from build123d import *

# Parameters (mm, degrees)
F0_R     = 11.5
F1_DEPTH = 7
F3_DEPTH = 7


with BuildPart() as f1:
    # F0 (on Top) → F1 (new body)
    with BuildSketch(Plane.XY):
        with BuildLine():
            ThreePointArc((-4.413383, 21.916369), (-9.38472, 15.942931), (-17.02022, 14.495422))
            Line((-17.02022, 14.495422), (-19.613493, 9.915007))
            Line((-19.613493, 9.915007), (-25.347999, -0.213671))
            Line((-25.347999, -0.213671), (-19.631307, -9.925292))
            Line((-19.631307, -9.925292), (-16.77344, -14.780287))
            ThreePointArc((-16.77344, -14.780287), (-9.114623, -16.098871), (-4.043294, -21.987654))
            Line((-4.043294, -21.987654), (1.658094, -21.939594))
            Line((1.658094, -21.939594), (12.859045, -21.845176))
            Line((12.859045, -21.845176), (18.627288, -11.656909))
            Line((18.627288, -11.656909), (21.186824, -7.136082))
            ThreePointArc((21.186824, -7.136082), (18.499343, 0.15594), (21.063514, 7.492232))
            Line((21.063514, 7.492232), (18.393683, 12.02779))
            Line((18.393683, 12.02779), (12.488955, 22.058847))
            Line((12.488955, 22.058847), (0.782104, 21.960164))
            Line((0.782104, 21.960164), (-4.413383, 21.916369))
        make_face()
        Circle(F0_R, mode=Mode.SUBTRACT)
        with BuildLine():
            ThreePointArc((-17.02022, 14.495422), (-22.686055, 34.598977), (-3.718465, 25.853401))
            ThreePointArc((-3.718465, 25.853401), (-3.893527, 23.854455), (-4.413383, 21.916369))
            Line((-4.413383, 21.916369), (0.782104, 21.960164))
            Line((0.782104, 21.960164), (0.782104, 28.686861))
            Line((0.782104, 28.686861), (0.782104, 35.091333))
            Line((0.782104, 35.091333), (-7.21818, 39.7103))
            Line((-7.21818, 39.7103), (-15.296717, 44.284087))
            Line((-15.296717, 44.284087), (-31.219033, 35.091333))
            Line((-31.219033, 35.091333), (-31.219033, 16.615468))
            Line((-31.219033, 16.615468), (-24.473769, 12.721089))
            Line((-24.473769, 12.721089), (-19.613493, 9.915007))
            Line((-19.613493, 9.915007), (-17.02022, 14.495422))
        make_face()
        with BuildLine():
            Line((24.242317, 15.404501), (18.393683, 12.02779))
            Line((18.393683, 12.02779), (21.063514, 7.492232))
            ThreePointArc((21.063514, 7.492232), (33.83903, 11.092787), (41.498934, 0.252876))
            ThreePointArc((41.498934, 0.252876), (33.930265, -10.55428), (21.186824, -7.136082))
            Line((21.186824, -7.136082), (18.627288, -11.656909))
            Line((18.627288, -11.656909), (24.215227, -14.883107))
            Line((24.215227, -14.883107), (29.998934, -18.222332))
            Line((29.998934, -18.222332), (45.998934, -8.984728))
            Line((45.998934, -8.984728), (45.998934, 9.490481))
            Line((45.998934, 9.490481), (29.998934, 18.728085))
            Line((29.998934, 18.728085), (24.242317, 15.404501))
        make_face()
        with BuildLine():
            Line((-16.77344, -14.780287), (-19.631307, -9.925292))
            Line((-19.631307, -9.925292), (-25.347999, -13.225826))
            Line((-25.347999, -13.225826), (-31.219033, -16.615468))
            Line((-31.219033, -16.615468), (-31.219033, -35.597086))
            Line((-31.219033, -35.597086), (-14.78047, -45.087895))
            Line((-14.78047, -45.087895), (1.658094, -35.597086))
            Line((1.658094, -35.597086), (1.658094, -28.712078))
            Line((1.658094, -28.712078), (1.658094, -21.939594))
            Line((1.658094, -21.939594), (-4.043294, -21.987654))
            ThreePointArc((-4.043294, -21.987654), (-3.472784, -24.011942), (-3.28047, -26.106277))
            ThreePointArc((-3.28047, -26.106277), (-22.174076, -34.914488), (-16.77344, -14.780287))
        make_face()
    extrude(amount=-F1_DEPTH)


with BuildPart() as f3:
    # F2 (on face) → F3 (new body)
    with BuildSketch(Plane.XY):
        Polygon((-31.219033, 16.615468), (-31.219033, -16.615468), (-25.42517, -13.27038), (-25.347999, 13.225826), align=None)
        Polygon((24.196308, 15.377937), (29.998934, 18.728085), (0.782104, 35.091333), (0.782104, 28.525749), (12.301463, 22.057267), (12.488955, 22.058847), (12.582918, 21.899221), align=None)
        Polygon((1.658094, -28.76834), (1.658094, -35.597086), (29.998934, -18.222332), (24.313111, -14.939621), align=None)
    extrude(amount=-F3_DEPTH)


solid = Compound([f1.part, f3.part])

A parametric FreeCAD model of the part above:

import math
import FreeCAD as App
import Part
import Sketcher

V = App.Vector
Q = App.Units.Quantity

doc = App.newDocument("Part")
params = doc.addObject("Spreadsheet::Sheet", "Params")
for row, (alias, value) in enumerate([
    ("sketch1_diameter", "23 mm"),
    ("pad1_length", "7 mm"),
    ("pad2_length", "7 mm"),
], start=1):
    params.set(f"A{row}", alias)
    params.set(f"B{row}", "=" + value)
    params.setAlias(f"B{row}", alias)

body = doc.addObject("PartDesign::Body", "Body")

sketch1 = doc.addObject("Sketcher::SketchObject", "Sketch")
body.addObject(sketch1)
sketch1.AttachmentSupport = (doc.XY_Plane, [""])
sketch1.MapMode = "FlatFace"
sketch1.addGeometry([
    Part.LineSegment(V(12.5, 22.1, 0), V(0.8, 22, 0)),
    Part.LineSegment(V(0.8, 22, 0), V(0.8, 35.1, 0)),
    Part.LineSegment(V(0.8, 35.1, 0), V(-7.2, 39.7, 0)),
    Part.LineSegment(V(-7.2, 39.7, 0), V(-15.3, 44.3, 0)),
    Part.LineSegment(V(-15.3, 44.3, 0), V(-31.2, 35.1, 0)),
    Part.LineSegment(V(-31.2, 35.1, 0), V(-31.2, 16.6, 0)),
    Part.LineSegment(V(-31.2, 16.6, 0), V(-24.5, 12.7, 0)),
    Part.LineSegment(V(-24.5, 12.7, 0), V(-19.6, 9.9, 0)),
    Part.LineSegment(V(-19.6, 9.9, 0), V(-25.3, -0.2, 0)),
    Part.LineSegment(V(-25.3, -0.2, 0), V(-19.6, -9.9, 0)),
    Part.LineSegment(V(-19.6, -9.9, 0), V(-25.3, -13.2, 0)),
    Part.LineSegment(V(-25.3, -13.2, 0), V(-31.2, -16.6, 0)),
    Part.LineSegment(V(-31.2, -16.6, 0), V(-31.2, -35.6, 0)),
    Part.LineSegment(V(-31.2, -35.6, 0), V(-14.8, -45.1, 0)),
    Part.LineSegment(V(-14.8, -45.1, 0), V(1.7, -35.6, 0)),
    Part.LineSegment(V(1.7, -35.6, 0), V(1.7, -21.9, 0)),
    Part.LineSegment(V(1.7, -21.9, 0), V(12.9, -21.8, 0)),
    Part.LineSegment(V(12.9, -21.8, 0), V(18.6, -11.7, 0)),
    Part.LineSegment(V(18.6, -11.7, 0), V(24.2, -14.9, 0)),
    Part.LineSegment(V(24.2, -14.9, 0), V(30, -18.2, 0)),
    Part.LineSegment(V(30, -18.2, 0), V(46, -9, 0)),
    Part.LineSegment(V(46, -9, 0), V(46, 9.5, 0)),
    Part.LineSegment(V(46, 9.5, 0), V(30, 18.7, 0)),
    Part.LineSegment(V(30, 18.7, 0), V(24.2, 15.4, 0)),
    Part.LineSegment(V(24.2, 15.4, 0), V(18.4, 12, 0)),
    Part.LineSegment(V(18.4, 12, 0), V(12.5, 22.1, 0)),
    Part.ArcOfCircle(Part.Circle(V(-15.2, 25.9, 0), V(0, 0, 1), 11.5), math.radians(-99), math.radians(-20)),
    Part.ArcOfCircle(Part.Circle(V(-15.2, 25.9, 0), V(0, 0, 1), 11.5), math.radians(0), math.radians(261)),
    Part.ArcOfCircle(Part.Circle(V(-15.2, 25.9, 0), V(0, 0, 1), 11.5), math.radians(-20), math.radians(0)),
    Part.ArcOfCircle(Part.Circle(V(-14.8, -26.1, 0), V(0, 0, 1), 11.5), math.radians(21), math.radians(100)),
    Part.ArcOfCircle(Part.Circle(V(-14.8, -26.1, 0), V(0, 0, 1), 11.5), math.radians(0), math.radians(21)),
    Part.ArcOfCircle(Part.Circle(V(-14.8, -26.1, 0), V(0, 0, 1), 11.5), math.radians(100), math.radians(360)),
    Part.ArcOfCircle(Part.Circle(V(30, 0.3, 0), V(0, 0, 1), 11.5), math.radians(141), math.radians(220)),
    Part.ArcOfCircle(Part.Circle(V(30, 0.3, 0), V(0, 0, 1), 11.5), math.radians(0), math.radians(141)),
    Part.ArcOfCircle(Part.Circle(V(30, 0.3, 0), V(0, 0, 1), 11.5), math.radians(-140), math.radians(0)),
    Part.Circle(V(0, 0, 0), V(0, 0, 1), 11.5),
], False)
sketch1.addConstraint([
    Sketcher.Constraint("Coincident", 0, 2, 1, 1),
    Sketcher.Constraint("Coincident", 1, 2, 2, 1),
    Sketcher.Constraint("Coincident", 2, 2, 3, 1),
    Sketcher.Constraint("Coincident", 3, 2, 4, 1),
    Sketcher.Constraint("Coincident", 4, 2, 5, 1),
    Sketcher.Constraint("Coincident", 5, 2, 6, 1),
    Sketcher.Constraint("Coincident", 6, 2, 7, 1),
    Sketcher.Constraint("Coincident", 7, 2, 8, 1),
    Sketcher.Constraint("Coincident", 8, 2, 9, 1),
    Sketcher.Constraint("Coincident", 9, 2, 10, 1),
    Sketcher.Constraint("Coincident", 10, 2, 11, 1),
    Sketcher.Constraint("Coincident", 11, 2, 12, 1),
    Sketcher.Constraint("Coincident", 12, 2, 13, 1),
    Sketcher.Constraint("Coincident", 13, 2, 14, 1),
    Sketcher.Constraint("Coincident", 14, 2, 15, 1),
    Sketcher.Constraint("Coincident", 15, 2, 16, 1),
    Sketcher.Constraint("Coincident", 16, 2, 17, 1),
    Sketcher.Constraint("Coincident", 17, 2, 18, 1),
    Sketcher.Constraint("Coincident", 18, 2, 19, 1),
    Sketcher.Constraint("Coincident", 19, 2, 20, 1),
    Sketcher.Constraint("Coincident", 20, 2, 21, 1),
    Sketcher.Constraint("Coincident", 21, 2, 22, 1),
    Sketcher.Constraint("Coincident", 22, 2, 23, 1),
    Sketcher.Constraint("Coincident", 23, 2, 24, 1),
    Sketcher.Constraint("Coincident", 24, 2, 25, 1),
    Sketcher.Constraint("Coincident", 25, 2, 0, 1),
    Sketcher.Constraint("Tangent", 26, 1, 27, 2),
    Sketcher.Constraint("Tangent", 27, 1, 28, 2),
    Sketcher.Constraint("Tangent", 28, 1, 26, 2),
    Sketcher.Constraint("Tangent", 29, 1, 30, 2),
    Sketcher.Constraint("Tangent", 30, 1, 31, 2),
    Sketcher.Constraint("Tangent", 31, 1, 29, 2),
    Sketcher.Constraint("Tangent", 32, 1, 33, 2),
    Sketcher.Constraint("Tangent", 33, 1, 34, 2),
    Sketcher.Constraint("Tangent", 34, 1, 32, 2),
    Sketcher.Constraint("Vertical", 1),
    Sketcher.Constraint("Vertical", 5),
    Sketcher.Constraint("Vertical", 12),
    Sketcher.Constraint("Vertical", 15),
    Sketcher.Constraint("Vertical", 21),
    Sketcher.Constraint("Coincident", 35, 3, -1, 1),
    Sketcher.Constraint("Equal", 27, 29),
    Sketcher.Constraint("Equal", 31, 32),
    Sketcher.Constraint("Equal", 34, 35),
    Sketcher.Constraint("Symmetric", 5, 2, 11, 2, -1),
    Sketcher.Constraint("Parallel", 2, 6),
    Sketcher.Constraint("Parallel", 6, 7),
    Sketcher.Constraint("Perpendicular", 3, 8),
    Sketcher.Constraint("Parallel", 4, 10),
    Sketcher.Constraint("Parallel", 10, 11),
    Sketcher.Constraint("Parallel", 7, 13),
    Sketcher.Constraint("Parallel", 11, 14),
    Sketcher.Constraint("Parallel", 0, 16),
    Sketcher.Constraint("Parallel", 8, 17),
    Sketcher.Constraint("Parallel", 13, 18),
    Sketcher.Constraint("Parallel", 18, 19),
    Sketcher.Constraint("Parallel", 14, 20),
    Sketcher.Constraint("Parallel", 19, 22),
    Sketcher.Constraint("Parallel", 20, 23),
    Sketcher.Constraint("Parallel", 23, 24),
    Sketcher.Constraint("Parallel", 9, 25),
    Sketcher.Constraint("Horizontal", 1, 2, 4, 2),
    Sketcher.Constraint("Horizontal", 12, 2, 14, 2),
    Sketcher.Constraint("Horizontal", 28, 3, 27, 1),
    Sketcher.Constraint("Horizontal", 31, 3, 30, 1),
    Sketcher.Constraint("Horizontal", 34, 3, 33, 1),
    Sketcher.Constraint("Vertical", 8, 2, 10, 2),
    Sketcher.Constraint("Vertical", 31, 3, 13, 2),
    Sketcher.Constraint("Vertical", 34, 3, 19, 2),
    Sketcher.Constraint("Vertical", 19, 2, 22, 2),
    Sketcher.Constraint("Equal", 13, 14),
    Sketcher.Constraint("Diameter", 35, Q("23 mm")),
    Sketcher.Constraint("Angle", 2, Q("149.999995 deg")),
    Sketcher.Constraint("DistanceX", 32, 3, 20, 2, Q("15.999999 mm")),
    Sketcher.Constraint("DistanceX", 8, 2, -1, 1, Q("25.347999 mm")),
    Sketcher.Constraint("DistanceY", 1, 1, 1, 2, Q("13.131169 mm")),
    Sketcher.Constraint("DistanceY", 15, 1, 15, 2, Q("13.657492 mm")),
    Sketcher.Constraint("DistanceY", 21, 1, 21, 2, Q("18.475209 mm")),
    Sketcher.Constraint("DistanceY", -1, 1, 27, 3, Q("25.853401 mm")),
    Sketcher.Constraint("DistanceY", -1, 1, 2, 2, Q("39.7103 mm")),
    Sketcher.Constraint("DistanceY", -1, 1, 23, 2, Q("15.404501 mm")),
    Sketcher.Constraint("DistanceX", 27, 3, 32, 3, Q("45.2174 mm")),
    Sketcher.Constraint("DistanceY", 9, 2, 7, 2, Q("19.840299 mm")),
    Sketcher.Constraint("DistanceY", 29, 3, 16, 2, Q("4.2611 mm")),
    Sketcher.Constraint("DistanceY", 18, 2, 17, 2, Q("3.226198 mm")),
    Sketcher.Constraint("Distance", 3, Q("9.283442 mm")),
    Sketcher.Constraint("Distance", 6, Q("7.788759 mm")),
    Sketcher.Constraint("Distance", 8, Q("11.639359 mm")),
    Sketcher.Constraint("Distance", 14, Q("18.981619 mm")),
    Sketcher.Constraint("Distance", 16, Q("11.201349 mm")),
    Sketcher.Constraint("Distance", 19, Q("6.67845 mm")),
    Sketcher.Constraint("Distance", 23, Q("6.647169 mm")),
    Sketcher.Constraint("Distance", 24, Q("6.753421 mm")),
    Sketcher.Constraint("DistanceY", 5, 2, 5, 1, Q("18.475865 mm")),
    Sketcher.Constraint("DistanceY", 12, 2, 12, 1, Q("18.981618 mm")),
    Sketcher.Constraint("DistanceX", 29, 3, -1, 1, Q("14.780469 mm")),
    Sketcher.Constraint("DistanceX", 2, 2, -1, 1, Q("7.21818 mm")),
    Sketcher.Constraint("DistanceY", -1, 1, 5, 2, Q("16.615468 mm")),
    Sketcher.Constraint("DistanceX", -1, 1, 17, 2, Q("18.627288 mm")),
    Sketcher.Constraint("DistanceX", 26, 1, -1, 1, Q("17.02022 mm")),
    Sketcher.Constraint("DistanceY", -1, 1, 28, 1, Q("21.916369 mm")),
    Sketcher.Constraint("DistanceX", 31, 1, -1, 1, Q("16.77344 mm")),
    Sketcher.Constraint("DistanceY", 19, 2, 33, 3, Q("18.475208 mm")),
    Sketcher.Constraint("DistanceX", 29, 1, 15, 2, Q("5.701388 mm")),
    Sketcher.Constraint("DistanceX", 24, 2, 32, 1, Q("2.669831 mm")),
    Sketcher.Constraint("DistanceX", 34, 1, 33, 3, Q("8.81211 mm")),
])
sketch1.setExpression("Constraints[71]", "Params.sketch1_diameter")
pad1 = doc.addObject("PartDesign::Pad", "Pad")
body.addObject(pad1)
pad1.Profile = sketch1
pad1.setExpression("Length", "Params.pad1_length")
pad1.Reversed = True
body2 = doc.addObject("PartDesign::Body", "Body001")
body2.AllowCompound = True

sketch2 = doc.addObject("Sketcher::SketchObject", "Sketch001")
body2.addObject(sketch2)
sketch2.AttachmentSupport = (doc.getObject("XY_Plane001"), [""])
sketch2.MapMode = "FlatFace"
sketch2.addGeometry([
    Part.LineSegment(V(-31.22, 16.62, 0), V(-31.22, -16.62, 0)),
    Part.LineSegment(V(-31.22, -16.62, 0), V(-25.43, -13.27, 0)),
    Part.LineSegment(V(-25.43, -13.27, 0), V(-25.35, 13.23, 0)),
    Part.LineSegment(V(-25.35, 13.23, 0), V(-31.22, 16.62, 0)),
    Part.LineSegment(V(24.2, 15.38, 0), V(30, 18.73, 0)),
    Part.LineSegment(V(30, 18.73, 0), V(0.78, 35.09, 0)),
    Part.LineSegment(V(0.78, 35.09, 0), V(0.78, 28.53, 0)),
    Part.LineSegment(V(0.78, 28.53, 0), V(12.3, 22.06, 0)),
    Part.LineSegment(V(12.3, 22.06, 0), V(12.49, 22.06, 0)),
    Part.LineSegment(V(12.49, 22.06, 0), V(12.58, 21.9, 0)),
    Part.LineSegment(V(12.58, 21.9, 0), V(24.2, 15.38, 0)),
    Part.LineSegment(V(1.66, -28.77, 0), V(1.66, -35.6, 0)),
    Part.LineSegment(V(1.66, -35.6, 0), V(30, -18.22, 0)),
    Part.LineSegment(V(30, -18.22, 0), V(24.31, -14.94, 0)),
    Part.LineSegment(V(24.31, -14.94, 0), V(1.66, -28.77, 0)),
], False)
sketch2.addConstraint([
    Sketcher.Constraint("Coincident", 0, 2, 1, 1),
    Sketcher.Constraint("Coincident", 1, 2, 2, 1),
    Sketcher.Constraint("Coincident", 2, 2, 3, 1),
    Sketcher.Constraint("Coincident", 3, 2, 0, 1),
    Sketcher.Constraint("Coincident", 4, 2, 5, 1),
    Sketcher.Constraint("Coincident", 5, 2, 6, 1),
    Sketcher.Constraint("Coincident", 6, 2, 7, 1),
    Sketcher.Constraint("Coincident", 7, 2, 8, 1),
    Sketcher.Constraint("Coincident", 8, 2, 9, 1),
    Sketcher.Constraint("Coincident", 9, 2, 10, 1),
    Sketcher.Constraint("Coincident", 10, 2, 4, 1),
    Sketcher.Constraint("Coincident", 11, 2, 12, 1),
    Sketcher.Constraint("Coincident", 12, 2, 13, 1),
    Sketcher.Constraint("Coincident", 13, 2, 14, 1),
    Sketcher.Constraint("Coincident", 14, 2, 11, 1),
    Sketcher.Constraint("Vertical", 0),
    Sketcher.Constraint("Vertical", 6),
    Sketcher.Constraint("Vertical", 11),
    Sketcher.Constraint("Parallel", 1, 4),
    Sketcher.Constraint("Parallel", 7, 10),
    Sketcher.Constraint("Parallel", 3, 13),
    Sketcher.Constraint("Vertical", 4, 2, 12, 2),
    Sketcher.Constraint("Angle", 1, Q("29.999997 deg")),
    Sketcher.Constraint("Angle", 3, Q("150.000008 deg")),
    Sketcher.Constraint("Distance", 5, Q("33.486998 mm")),
    Sketcher.Constraint("DistanceX", 2, 2, -1, 1, Q("25.347999 mm")),
    Sketcher.Constraint("Distance", 8, Q("0.187499 mm")),
    Sketcher.Constraint("DistanceY", 0, 2, 5, 2, Q("51.706801 mm")),
    Sketcher.Constraint("DistanceY", 3, 2, 7, 2, Q("5.441799 mm")),
    Sketcher.Constraint("Distance", 2, Q("26.496318 mm")),
    Sketcher.Constraint("Distance", 7, Q("13.211241 mm")),
    Sketcher.Constraint("Distance", 9, Q("0.185228 mm")),
    Sketcher.Constraint("DistanceY", 0, 2, 0, 1, Q("33.230936 mm")),
    Sketcher.Constraint("DistanceY", 6, 2, 6, 1, Q("6.565584 mm")),
    Sketcher.Constraint("DistanceY", 11, 2, 11, 1, Q("6.828746 mm")),
    Sketcher.Constraint("DistanceY", 0, 2, -1, 1, Q("16.615468 mm")),
    Sketcher.Constraint("DistanceX", 1, 2, -1, 1, Q("25.42517 mm")),
    Sketcher.Constraint("DistanceY", -1, 1, 9, 2, Q("21.899221 mm")),
    Sketcher.Constraint("DistanceX", -1, 1, 13, 2, Q("24.313111 mm")),
    Sketcher.Constraint("DistanceY", 13, 2, -1, 1, Q("14.939621 mm")),
    Sketcher.Constraint("DistanceY", 14, 2, -1, 1, Q("28.76834 mm")),
    Sketcher.Constraint("DistanceY", 2, 2, 4, 2, Q("5.502259 mm")),
    Sketcher.Constraint("DistanceY", 7, 2, 8, 2, Q("0.00158 mm")),
    Sketcher.Constraint("DistanceX", 11, 2, 12, 2, Q("28.34084 mm")),
    Sketcher.Constraint("DistanceY", 12, 2, 10, 2, Q("33.600269 mm")),
])
pad2 = doc.addObject("PartDesign::Pad", "Pad001")
body2.addObject(pad2)
pad2.Profile = sketch2
pad2.setExpression("Length", "Params.pad2_length")
pad2.Reversed = True

doc.recompute()
